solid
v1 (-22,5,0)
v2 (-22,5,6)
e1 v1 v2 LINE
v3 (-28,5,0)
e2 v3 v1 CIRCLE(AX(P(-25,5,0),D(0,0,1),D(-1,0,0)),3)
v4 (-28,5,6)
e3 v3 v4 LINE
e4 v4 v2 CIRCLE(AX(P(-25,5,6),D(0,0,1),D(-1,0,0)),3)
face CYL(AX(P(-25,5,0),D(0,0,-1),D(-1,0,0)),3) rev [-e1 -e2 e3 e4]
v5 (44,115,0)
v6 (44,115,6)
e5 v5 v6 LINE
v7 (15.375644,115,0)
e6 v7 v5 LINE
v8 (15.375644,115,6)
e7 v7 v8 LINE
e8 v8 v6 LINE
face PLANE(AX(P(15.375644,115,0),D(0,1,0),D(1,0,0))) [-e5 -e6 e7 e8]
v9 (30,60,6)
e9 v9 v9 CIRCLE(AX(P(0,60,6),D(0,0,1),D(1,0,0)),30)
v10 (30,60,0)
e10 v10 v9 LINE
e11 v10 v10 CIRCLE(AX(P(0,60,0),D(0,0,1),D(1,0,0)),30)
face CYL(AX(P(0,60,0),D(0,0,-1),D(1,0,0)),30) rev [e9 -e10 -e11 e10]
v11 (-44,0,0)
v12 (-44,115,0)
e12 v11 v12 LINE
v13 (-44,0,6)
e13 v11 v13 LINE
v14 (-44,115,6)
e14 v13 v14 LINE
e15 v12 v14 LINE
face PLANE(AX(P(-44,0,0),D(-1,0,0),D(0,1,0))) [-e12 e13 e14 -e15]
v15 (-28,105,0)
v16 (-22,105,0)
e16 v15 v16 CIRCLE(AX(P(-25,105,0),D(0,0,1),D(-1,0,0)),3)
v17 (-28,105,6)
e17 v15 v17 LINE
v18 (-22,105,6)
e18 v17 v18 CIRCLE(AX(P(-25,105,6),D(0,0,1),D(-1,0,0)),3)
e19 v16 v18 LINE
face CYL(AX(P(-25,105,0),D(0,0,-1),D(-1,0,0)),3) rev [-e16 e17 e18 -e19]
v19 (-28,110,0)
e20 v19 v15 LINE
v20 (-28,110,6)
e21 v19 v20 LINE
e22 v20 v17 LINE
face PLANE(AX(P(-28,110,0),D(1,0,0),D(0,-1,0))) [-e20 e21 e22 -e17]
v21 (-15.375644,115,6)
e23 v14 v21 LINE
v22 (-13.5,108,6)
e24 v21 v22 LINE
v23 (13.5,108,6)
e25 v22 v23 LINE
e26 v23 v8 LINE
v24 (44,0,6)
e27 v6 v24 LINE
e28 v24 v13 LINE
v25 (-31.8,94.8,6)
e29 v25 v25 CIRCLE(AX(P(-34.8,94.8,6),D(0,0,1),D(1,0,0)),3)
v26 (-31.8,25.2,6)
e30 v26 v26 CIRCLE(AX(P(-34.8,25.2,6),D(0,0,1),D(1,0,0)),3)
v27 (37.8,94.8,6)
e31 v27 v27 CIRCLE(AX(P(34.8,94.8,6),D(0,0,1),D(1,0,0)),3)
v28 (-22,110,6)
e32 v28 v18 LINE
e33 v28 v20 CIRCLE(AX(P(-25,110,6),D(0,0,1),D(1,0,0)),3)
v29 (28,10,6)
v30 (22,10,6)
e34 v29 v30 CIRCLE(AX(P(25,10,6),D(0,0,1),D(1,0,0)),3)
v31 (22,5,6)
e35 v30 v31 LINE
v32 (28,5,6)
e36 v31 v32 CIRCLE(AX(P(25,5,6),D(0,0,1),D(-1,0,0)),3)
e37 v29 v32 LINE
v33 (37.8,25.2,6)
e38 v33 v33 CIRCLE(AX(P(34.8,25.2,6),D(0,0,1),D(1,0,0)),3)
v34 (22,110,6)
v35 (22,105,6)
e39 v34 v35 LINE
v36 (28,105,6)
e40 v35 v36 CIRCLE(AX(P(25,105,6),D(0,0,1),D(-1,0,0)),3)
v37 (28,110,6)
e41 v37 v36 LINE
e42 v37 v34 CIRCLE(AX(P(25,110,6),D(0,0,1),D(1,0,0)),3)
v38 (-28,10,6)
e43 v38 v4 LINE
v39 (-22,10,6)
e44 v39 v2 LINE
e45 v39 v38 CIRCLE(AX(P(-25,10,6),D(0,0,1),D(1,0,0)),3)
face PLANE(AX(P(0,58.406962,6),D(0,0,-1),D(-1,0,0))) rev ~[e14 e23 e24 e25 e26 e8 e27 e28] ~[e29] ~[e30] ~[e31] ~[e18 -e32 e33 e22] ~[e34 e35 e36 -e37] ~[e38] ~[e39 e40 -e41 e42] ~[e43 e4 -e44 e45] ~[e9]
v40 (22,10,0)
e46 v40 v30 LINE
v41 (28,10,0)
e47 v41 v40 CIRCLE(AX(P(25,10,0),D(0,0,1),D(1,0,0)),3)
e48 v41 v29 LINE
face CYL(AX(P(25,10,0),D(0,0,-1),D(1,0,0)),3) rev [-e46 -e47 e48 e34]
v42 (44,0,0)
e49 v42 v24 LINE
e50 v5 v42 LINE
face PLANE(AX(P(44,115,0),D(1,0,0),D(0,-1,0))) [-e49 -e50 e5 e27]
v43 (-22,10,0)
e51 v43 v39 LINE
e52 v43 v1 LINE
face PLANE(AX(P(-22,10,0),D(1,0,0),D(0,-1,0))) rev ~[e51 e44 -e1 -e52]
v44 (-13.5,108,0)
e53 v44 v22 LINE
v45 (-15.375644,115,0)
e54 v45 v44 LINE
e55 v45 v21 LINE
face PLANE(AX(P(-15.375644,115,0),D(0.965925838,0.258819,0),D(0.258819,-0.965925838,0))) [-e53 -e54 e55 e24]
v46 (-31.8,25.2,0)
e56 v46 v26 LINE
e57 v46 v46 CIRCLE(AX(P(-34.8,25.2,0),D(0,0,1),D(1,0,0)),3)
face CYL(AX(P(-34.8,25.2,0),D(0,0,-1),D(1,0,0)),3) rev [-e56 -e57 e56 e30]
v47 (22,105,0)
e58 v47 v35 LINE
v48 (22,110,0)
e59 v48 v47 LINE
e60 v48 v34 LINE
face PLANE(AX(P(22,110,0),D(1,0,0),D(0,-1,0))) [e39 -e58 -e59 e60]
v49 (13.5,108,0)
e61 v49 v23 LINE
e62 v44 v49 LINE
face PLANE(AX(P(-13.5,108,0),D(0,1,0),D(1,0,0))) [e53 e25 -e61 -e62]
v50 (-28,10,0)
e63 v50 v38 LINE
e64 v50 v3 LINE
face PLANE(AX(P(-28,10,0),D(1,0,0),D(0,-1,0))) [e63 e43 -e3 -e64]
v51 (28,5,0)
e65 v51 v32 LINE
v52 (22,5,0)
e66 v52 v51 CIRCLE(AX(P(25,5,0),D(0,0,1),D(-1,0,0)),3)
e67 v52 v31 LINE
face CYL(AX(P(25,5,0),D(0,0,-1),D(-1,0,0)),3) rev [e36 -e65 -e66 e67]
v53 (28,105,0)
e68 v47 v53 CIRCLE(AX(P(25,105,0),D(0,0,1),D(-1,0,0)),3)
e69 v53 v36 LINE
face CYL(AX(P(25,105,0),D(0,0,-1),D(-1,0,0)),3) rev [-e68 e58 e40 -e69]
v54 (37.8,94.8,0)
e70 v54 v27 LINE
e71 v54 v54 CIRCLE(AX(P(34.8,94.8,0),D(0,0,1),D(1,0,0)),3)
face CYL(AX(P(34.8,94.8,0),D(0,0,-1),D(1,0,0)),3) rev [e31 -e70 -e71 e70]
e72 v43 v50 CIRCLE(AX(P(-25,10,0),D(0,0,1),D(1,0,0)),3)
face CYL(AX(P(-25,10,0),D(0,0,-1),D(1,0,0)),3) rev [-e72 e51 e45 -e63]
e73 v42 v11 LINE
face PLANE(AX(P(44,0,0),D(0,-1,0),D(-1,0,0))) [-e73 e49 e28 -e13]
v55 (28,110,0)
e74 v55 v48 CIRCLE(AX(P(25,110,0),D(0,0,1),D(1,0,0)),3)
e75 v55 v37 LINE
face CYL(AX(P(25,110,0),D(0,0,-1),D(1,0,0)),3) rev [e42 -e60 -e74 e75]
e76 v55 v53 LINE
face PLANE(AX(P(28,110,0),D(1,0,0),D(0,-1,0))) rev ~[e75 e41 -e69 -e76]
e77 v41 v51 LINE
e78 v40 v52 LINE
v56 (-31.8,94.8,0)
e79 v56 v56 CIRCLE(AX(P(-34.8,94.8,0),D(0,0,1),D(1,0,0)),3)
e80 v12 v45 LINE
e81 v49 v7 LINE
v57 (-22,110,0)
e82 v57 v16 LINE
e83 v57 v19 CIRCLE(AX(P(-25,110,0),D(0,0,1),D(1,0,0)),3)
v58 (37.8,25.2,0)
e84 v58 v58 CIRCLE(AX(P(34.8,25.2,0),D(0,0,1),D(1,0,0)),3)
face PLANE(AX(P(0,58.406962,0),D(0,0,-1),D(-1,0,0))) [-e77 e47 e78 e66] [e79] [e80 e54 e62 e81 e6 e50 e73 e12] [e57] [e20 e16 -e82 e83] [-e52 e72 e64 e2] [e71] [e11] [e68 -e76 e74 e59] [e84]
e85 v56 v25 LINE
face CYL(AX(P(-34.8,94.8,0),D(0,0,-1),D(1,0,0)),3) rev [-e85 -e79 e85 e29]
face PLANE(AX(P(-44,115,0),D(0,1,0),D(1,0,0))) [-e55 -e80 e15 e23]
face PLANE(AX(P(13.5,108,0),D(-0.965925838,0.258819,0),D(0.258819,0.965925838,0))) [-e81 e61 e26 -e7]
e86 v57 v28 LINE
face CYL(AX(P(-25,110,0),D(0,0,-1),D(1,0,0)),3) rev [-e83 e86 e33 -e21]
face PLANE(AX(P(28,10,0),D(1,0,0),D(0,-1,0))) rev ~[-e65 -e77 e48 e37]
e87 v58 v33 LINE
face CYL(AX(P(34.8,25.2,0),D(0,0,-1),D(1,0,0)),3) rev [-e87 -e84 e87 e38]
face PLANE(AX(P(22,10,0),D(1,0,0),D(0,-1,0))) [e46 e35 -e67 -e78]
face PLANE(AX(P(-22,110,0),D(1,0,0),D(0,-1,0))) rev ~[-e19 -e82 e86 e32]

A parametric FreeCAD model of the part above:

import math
import FreeCAD as App
import Part
import Sketcher
Q = App.Units.Quantity


def add_polygon(sketch, points):
    """Adds a closed chain of lines whose ends are joined by coincident constraints."""
    first, n = sketch.GeometryCount, len(points)
    for a, b in zip(points, points[1:] + points[:1]):
        sketch.addGeometry(Part.LineSegment(App.Vector(*a, 0), App.Vector(*b, 0)), False)
    for i in range(n):
        sketch.addConstraint(Sketcher.Constraint("Coincident", first + i, 2, first + (i + 1) % n, 1))

doc = App.newDocument("Part")
params = doc.addObject("Spreadsheet::Sheet", "Params")
for row, (alias, value) in enumerate([
    ("sketch1_diameter", "6 mm"),
    ("sketch1_diameter2", "60 mm"),
    ("sketch1_width", "27 mm"),
    ("sketch1_width2", "88 mm"),
    ("sketch1_height", "115 mm"),
    ("pad1_length", "6 mm"),
], start=1):
    params.set(f"A{row}", alias)
    params.set(f"B{row}", "=" + value)
    params.setAlias(f"B{row}", alias)

body = doc.addObject("PartDesign::Body", "Body")

sketch1 = doc.addObject("Sketcher::SketchObject", "Sketch")
body.addObject(sketch1)
sketch1.AttachmentSupport = (doc.XY_Plane, [""])
sketch1.MapMode = "FlatFace"
add_polygon(sketch1, [(44, 0), (44, 115), (15.375644, 115), (13.5, 108), (-13.5, 108), (-15.375644, 115), (-44, 115), (-44, 0)])
sketch1.addGeometry(Part.LineSegment(App.Vector(28, 10, 0), App.Vector(28, 5, 0)), False)
sketch1.addGeometry(Part.ArcOfCircle(Part.Circle(App.Vector(25, 5, 0), App.Vector(0, 0, 1), 3), math.radians(180), math.radians(360)), False)
sketch1.addGeometry(Part.LineSegment(App.Vector(22, 5, 0), App.Vector(22, 10, 0)), False)
sketch1.addGeometry(Part.ArcOfCircle(Part.Circle(App.Vector(25, 10, 0), App.Vector(0, 0, 1), 3), math.radians(0), math.radians(180)), False)
sketch1.addGeometry(Part.Circle(App.Vector(34.8, 25.2, 0), App.Vector(0, 0, 1), 3), False)
sketch1.addGeometry(Part.LineSegment(App.Vector(-22, 10, 0), App.Vector(-22, 5, 0)), False)
sketch1.addGeometry(Part.ArcOfCircle(Part.Circle(App.Vector(-25, 5, 0), App.Vector(0, 0, 1), 3), math.radians(180), math.radians(360)), False)
sketch1.addGeometry(Part.LineSegment(App.Vector(-28, 5, 0), App.Vector(-28, 10, 0)), False)
sketch1.addGeometry(Part.ArcOfCircle(Part.Circle(App.Vector(-25, 10, 0), App.Vector(0, 0, 1), 3), math.radians(0), math.radians(180)), False)
sketch1.addGeometry(Part.Circle(App.Vector(-34.8, 25.2, 0), App.Vector(0, 0, 1), 3), False)
sketch1.addGeometry(Part.Circle(App.Vector(34.8, 94.8, 0), App.Vector(0, 0, 1), 3), False)
sketch1.addGeometry(Part.LineSegment(App.Vector(28, 110, 0), App.Vector(28, 105, 0)), False)
sketch1.addGeometry(Part.ArcOfCircle(Part.Circle(App.Vector(25, 105, 0), App.Vector(0, 0, 1), 3), math.radians(180), math.radians(360)), False)
sketch1.addGeometry(Part.LineSegment(App.Vector(22, 105, 0), App.Vector(22, 110, 0)), False)
sketch1.addGeometry(Part.ArcOfCircle(Part.Circle(App.Vector(25, 110, 0), App.Vector(0, 0, 1), 3), math.radians(0), math.radians(180)), False)
sketch1.addGeometry(Part.Circle(App.Vector(0, 60, 0), App.Vector(0, 0, 1), 30), False)
sketch1.addGeometry(Part.Circle(App.Vector(-34.8, 94.8, 0), App.Vector(0, 0, 1), 3), False)
sketch1.addGeometry(Part.LineSegment(App.Vector(-22, 110, 0), App.Vector(-22, 105, 0)), False)
sketch1.addGeometry(Part.ArcOfCircle(Part.Circle(App.Vector(-25, 105, 0), App.Vector(0, 0, 1), 3), math.radians(180), math.radians(360)), False)
sketch1.addGeometry(Part.LineSegment(App.Vector(-28, 105, 0), App.Vector(-28, 110, 0)), False)
sketch1.addGeometry(Part.ArcOfCircle(Part.Circle(App.Vector(-25, 110, 0), App.Vector(0, 0, 1), 3), math.radians(0), math.radians(180)), False)
sketch1.addConstraint(Sketcher.Constraint("Tangent", 8, 2, 9, 2))
sketch1.addConstraint(Sketcher.Constraint("Tangent", 9, 1, 10, 1))
sketch1.addConstraint(Sketcher.Constraint("Tangent", 10, 2, 11, 2))
sketch1.addConstraint(Sketcher.Constraint("Tangent", 11, 1, 8, 1))
sketch1.addConstraint(Sketcher.Constraint("Tangent", 13, 2, 14, 2))
sketch1.addConstraint(Sketcher.Constraint("Tangent", 14, 1, 15, 1))
sketch1.addConstraint(Sketcher.Constraint("Tangent", 15, 2, 16, 2))
sketch1.addConstraint(Sketcher.Constraint("Tangent", 16, 1, 13, 1))
sketch1.addConstraint(Sketcher.Constraint("Tangent", 19, 2, 20, 2))
sketch1.addConstraint(Sketcher.Constraint("Tangent", 20, 1, 21, 1))
sketch1.addConstraint(Sketcher.Constraint("Tangent", 21, 2, 22, 2))
sketch1.addConstraint(Sketcher.Constraint("Tangent", 22, 1, 19, 1))
sketch1.addConstraint(Sketcher.Constraint("Tangent", 25, 2, 26, 2))
sketch1.addConstraint(Sketcher.Constraint("Tangent", 26, 1, 27, 1))
sketch1.addConstraint(Sketcher.Constraint("Tangent", 27, 2, 28, 2))
sketch1.addConstraint(Sketcher.Constraint("Tangent", 28, 1, 25, 1))
sketch1.addConstraint(Sketcher.Constraint("Vertical", 0))
sketch1.addConstraint(Sketcher.Constraint("Horizontal", 1))
sketch1.addConstraint(Sketcher.Constraint("Horizontal", 3))
sketch1.addConstraint(Sketcher.Constraint("Horizontal", 5))
sketch1.addConstraint(Sketcher.Constraint("Vertical", 6))
sketch1.addConstraint(Sketcher.Constraint("Horizontal", 7))
sketch1.addConstraint(Sketcher.Constraint("Vertical", 8))
sketch1.addConstraint(Sketcher.Constraint("Vertical", 10))
sketch1.addConstraint(Sketcher.Constraint("Vertical", 13))
sketch1.addConstraint(Sketcher.Constraint("Vertical", 15))
sketch1.addConstraint(Sketcher.Constraint("Vertical", 19))
sketch1.addConstraint(Sketcher.Constraint("Vertical", 21))
sketch1.addConstraint(Sketcher.Constraint("Vertical", 25))
sketch1.addConstraint(Sketcher.Constraint("Vertical", 27))
sketch1.addConstraint(Sketcher.Constraint("Equal", 11, 12))
sketch1.addConstraint(Sketcher.Constraint("Equal", 12, 14))
sketch1.addConstraint(Sketcher.Constraint("Equal", 16, 17))
sketch1.addConstraint(Sketcher.Constraint("Equal", 17, 18))
sketch1.addConstraint(Sketcher.Constraint("Equal", 18, 20))
sketch1.addConstraint(Sketcher.Constraint("Equal", 22, 24))
sketch1.addConstraint(Sketcher.Constraint("Equal", 24, 26))
sketch1.addConstraint(Sketcher.Constraint("Symmetric", 6, 2, 7, 2, -1, 1))
sketch1.addConstraint(Sketcher.Constraint("Symmetric", 9, 3, 14, 3, -2))
sketch1.addConstraint(Sketcher.Constraint("Symmetric", 12, 3, 17, 3, -2))
sketch1.addConstraint(Sketcher.Constraint("Symmetric", 18, 3, 24, 3, -2))
sketch1.addConstraint(Sketcher.Constraint("Symmetric", 20, 3, 26, 3, -2))
sketch1.addConstraint(Sketcher.Constraint("Symmetric", 1, 2, 4, 2, -2))
sketch1.addConstraint(Sketcher.Constraint("PointOnObject", 23, 3, -2))
sketch1.addConstraint(Sketcher.Constraint("Horizontal", 11, 3, 16, 3))
sketch1.addConstraint(Sketcher.Constraint("Horizontal", 22, 3, 28, 3))
sketch1.addConstraint(Sketcher.Constraint("Vertical", 12, 3, 18, 3))
sketch1.addConstraint(Sketcher.Constraint("Vertical", 11, 3, 20, 3))
sketch1.addConstraint(Sketcher.Constraint("Equal", 15, 19))
sketch1.addConstraint(Sketcher.Constraint("Equal", 2, 4))
sketch1.addConstraint(Sketcher.Constraint("Diameter", 12, 6.0))
sketch1.addConstraint(Sketcher.Constraint("Diameter", 23, 60.0))
sketch1.addConstraint(Sketcher.Constraint("DistanceX", 3, 2, 3, 1, 27.0))
sketch1.addConstraint(Sketcher.Constraint("DistanceX", 7, 1, 7, 2, 88.0))
sketch1.addConstraint(Sketcher.Constraint("DistanceY", 0, 1, 0, 2, 115.0))
sketch1.addConstraint(Sketcher.Constraint("DistanceY", 8, 2, 8, 1, 5.0))
sketch1.addConstraint(Sketcher.Constraint("Angle", 2, Q("-104.999997 deg")))
sketch1.addConstraint(Sketcher.Constraint("DistanceX", -1, 1, 9, 3, 25.0))
sketch1.addConstraint(Sketcher.Constraint("DistanceY", -1, 1, 9, 3, 5.0))
sketch1.addConstraint(Sketcher.Constraint("DistanceY", -1, 1, 20, 3, 105.0))
sketch1.addConstraint(Sketcher.Constraint("DistanceY", -1, 1, 23, 3, 60.0))
sketch1.addConstraint(Sketcher.Constraint("DistanceY", -1, 1, 2, 2, 108.0))
sketch1.addConstraint(Sketcher.Constraint("DistanceX", -1, 1, 12, 3, 34.8))
sketch1.addConstraint(Sketcher.Constraint("DistanceY", -1, 1, 12, 3, 25.2))
sketch1.addConstraint(Sketcher.Constraint("DistanceY", -1, 1, 18, 3, 94.8))
sketch1.setExpression("Constraints[58]", "Params.sketch1_diameter")
sketch1.setExpression("Constraints[59]", "Params.sketch1_diameter2")
sketch1.setExpression("Constraints[60]", "Params.sketch1_width")
sketch1.setExpression("Constraints[61]", "Params.sketch1_width2")
sketch1.setExpression("Constraints[62]", "Params.sketch1_height")
pad1 = doc.addObject("PartDesign::Pad", "Pad")
body.addObject(pad1)
pad1.Profile = sketch1
pad1.setExpression("Length", "Params.pad1_length")

doc.recompute()
